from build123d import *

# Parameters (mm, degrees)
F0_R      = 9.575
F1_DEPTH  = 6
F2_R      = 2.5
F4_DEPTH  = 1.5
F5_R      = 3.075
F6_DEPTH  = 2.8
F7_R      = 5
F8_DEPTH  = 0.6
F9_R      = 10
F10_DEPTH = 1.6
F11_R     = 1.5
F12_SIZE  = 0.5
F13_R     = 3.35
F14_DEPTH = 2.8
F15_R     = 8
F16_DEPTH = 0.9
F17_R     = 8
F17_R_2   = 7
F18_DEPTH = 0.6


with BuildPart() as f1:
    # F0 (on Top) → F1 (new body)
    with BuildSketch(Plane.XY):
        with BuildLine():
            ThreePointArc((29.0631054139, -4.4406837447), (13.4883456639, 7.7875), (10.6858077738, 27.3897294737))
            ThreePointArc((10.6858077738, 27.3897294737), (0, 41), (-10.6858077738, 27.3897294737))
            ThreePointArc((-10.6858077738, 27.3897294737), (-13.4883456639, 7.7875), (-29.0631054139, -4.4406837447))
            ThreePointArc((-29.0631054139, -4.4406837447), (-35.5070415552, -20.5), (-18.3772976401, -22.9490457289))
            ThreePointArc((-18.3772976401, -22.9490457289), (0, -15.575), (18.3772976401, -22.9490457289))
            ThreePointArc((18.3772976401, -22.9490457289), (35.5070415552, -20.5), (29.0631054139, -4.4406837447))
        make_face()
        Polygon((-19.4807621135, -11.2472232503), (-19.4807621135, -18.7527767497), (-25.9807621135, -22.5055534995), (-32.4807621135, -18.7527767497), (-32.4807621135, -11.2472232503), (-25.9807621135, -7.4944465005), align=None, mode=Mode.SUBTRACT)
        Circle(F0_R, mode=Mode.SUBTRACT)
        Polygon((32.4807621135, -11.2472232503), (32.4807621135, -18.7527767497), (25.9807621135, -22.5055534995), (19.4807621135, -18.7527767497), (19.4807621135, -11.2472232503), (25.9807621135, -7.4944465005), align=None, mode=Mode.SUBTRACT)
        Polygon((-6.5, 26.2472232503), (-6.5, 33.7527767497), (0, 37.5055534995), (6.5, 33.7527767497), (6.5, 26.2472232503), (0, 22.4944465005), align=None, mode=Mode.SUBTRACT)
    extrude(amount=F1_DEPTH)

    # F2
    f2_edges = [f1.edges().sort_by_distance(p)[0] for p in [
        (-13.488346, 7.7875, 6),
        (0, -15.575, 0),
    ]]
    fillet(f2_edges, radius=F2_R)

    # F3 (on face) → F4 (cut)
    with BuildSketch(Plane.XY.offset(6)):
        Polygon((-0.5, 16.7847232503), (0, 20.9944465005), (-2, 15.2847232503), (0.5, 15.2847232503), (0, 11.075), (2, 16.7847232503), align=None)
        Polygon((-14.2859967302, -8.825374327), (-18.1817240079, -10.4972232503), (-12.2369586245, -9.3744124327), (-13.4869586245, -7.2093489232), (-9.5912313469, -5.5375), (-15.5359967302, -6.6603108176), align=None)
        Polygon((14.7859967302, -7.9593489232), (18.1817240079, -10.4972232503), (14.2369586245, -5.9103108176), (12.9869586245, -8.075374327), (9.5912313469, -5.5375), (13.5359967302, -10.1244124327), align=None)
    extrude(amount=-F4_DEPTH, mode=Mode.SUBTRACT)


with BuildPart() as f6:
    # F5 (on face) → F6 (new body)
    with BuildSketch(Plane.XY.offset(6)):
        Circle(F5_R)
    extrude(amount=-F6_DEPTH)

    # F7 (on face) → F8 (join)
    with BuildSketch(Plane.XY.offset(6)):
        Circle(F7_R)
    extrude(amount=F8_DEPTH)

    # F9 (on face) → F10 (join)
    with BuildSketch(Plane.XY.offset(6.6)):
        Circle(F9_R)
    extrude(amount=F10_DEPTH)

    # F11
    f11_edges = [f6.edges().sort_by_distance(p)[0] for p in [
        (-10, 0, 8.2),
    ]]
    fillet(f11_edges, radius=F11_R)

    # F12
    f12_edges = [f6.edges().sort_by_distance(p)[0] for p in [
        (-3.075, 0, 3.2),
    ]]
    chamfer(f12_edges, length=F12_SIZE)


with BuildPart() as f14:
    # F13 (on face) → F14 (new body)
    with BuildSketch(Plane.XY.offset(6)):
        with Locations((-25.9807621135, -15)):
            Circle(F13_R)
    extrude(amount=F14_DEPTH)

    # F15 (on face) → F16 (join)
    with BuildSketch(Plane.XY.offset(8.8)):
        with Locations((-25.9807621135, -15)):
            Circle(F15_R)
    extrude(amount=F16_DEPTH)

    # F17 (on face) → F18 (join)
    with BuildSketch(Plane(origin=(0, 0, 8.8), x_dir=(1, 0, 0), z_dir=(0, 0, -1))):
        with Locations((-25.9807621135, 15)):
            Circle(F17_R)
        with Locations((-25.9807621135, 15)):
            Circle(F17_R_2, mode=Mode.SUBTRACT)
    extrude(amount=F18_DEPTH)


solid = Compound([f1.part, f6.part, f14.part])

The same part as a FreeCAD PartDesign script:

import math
import FreeCAD as App
import Part
import Sketcher
from FreeCAD import Vector
Q = App.Units.Quantity


def edges_at(feature, points):
    """Names of the edges that pass closest to the given points."""
    edges = feature.Shape.Edges
    near = lambda p: min(range(len(edges)), key=lambda i: edges[i].distToShape(Part.Vertex(*p))[0])
    return sorted({f"Edge{near(p) + 1}" for p in points})

doc = App.newDocument("Part")
body = doc.addObject("PartDesign::Body", "Body")

# Sketch on XY plane
sketch1 = body.newObject("Sketcher::SketchObject", "Sketch")
sketch1.AttachmentSupport = (doc.getObject("XY_Plane"), [""])
sketch1.MapMode = "FlatFace"
sketch1.addGeometry([
    Part.ArcOfCircle(Part.Circle(Vector(37, 21, 0), Vector(0, 0, 1), 27), math.radians(166), math.radians(254)),  # 0
    Part.ArcOfCircle(Part.Circle(Vector(0, 30, 0), Vector(0, 0, 1), 11), math.radians(-14), math.radians(194)),  # 1
    Part.ArcOfCircle(Part.Circle(Vector(-37, 21, 0), Vector(0, 0, 1), 27), math.radians(-74), math.radians(14)),  # 2
    Part.ArcOfCircle(Part.Circle(Vector(-26, -15, 0), Vector(0, 0, 1), 11), math.radians(106), math.radians(314)),  # 3
    Part.ArcOfCircle(Part.Circle(Vector(0, -42, 0), Vector(0, 0, 1), 27), math.radians(46), math.radians(134)),  # 4
    Part.ArcOfCircle(Part.Circle(Vector(26, -15, 0), Vector(0, 0, 1), 11), math.radians(-134), math.radians(74)),  # 5
    Part.LineSegment(Vector(-26, -7, 0), Vector(-19, -11, 0)),  # 6
    Part.LineSegment(Vector(-19, -11, 0), Vector(-19, -19, 0)),  # 7
    Part.LineSegment(Vector(-19, -19, 0), Vector(-26, -23, 0)),  # 8
    Part.LineSegment(Vector(-26, -23, 0), Vector(-32, -19, 0)),  # 9
    Part.LineSegment(Vector(-32, -19, 0), Vector(-32, -11, 0)),  # 10
    Part.LineSegment(Vector(-32, -11, 0), Vector(-26, -7, 0)),  # 11
    Part.LineSegment(Vector(26, -7, 0), Vector(32, -11, 0)),  # 12
    Part.LineSegment(Vector(32, -11, 0), Vector(32, -19, 0)),  # 13
    Part.LineSegment(Vector(32, -19, 0), Vector(26, -23, 0)),  # 14
    Part.LineSegment(Vector(26, -23, 0), Vector(19, -19, 0)),  # 15
    Part.LineSegment(Vector(19, -19, 0), Vector(19, -11, 0)),  # 16
    Part.LineSegment(Vector(19, -11, 0), Vector(26, -7, 0)),  # 17
    Part.Circle(Vector(0, 0, 0), Vector(0, 0, 1), 10),  # 18
    Part.LineSegment(Vector(0, 22, 0), Vector(-6, 26, 0)),  # 19
    Part.LineSegment(Vector(-6, 26, 0), Vector(-6, 34, 0)),  # 20
    Part.LineSegment(Vector(-6, 34, 0), Vector(0, 38, 0)),  # 21
    Part.LineSegment(Vector(0, 38, 0), Vector(6, 34, 0)),  # 22
    Part.LineSegment(Vector(6, 34, 0), Vector(6, 26, 0)),  # 23
    Part.LineSegment(Vector(6, 26, 0), Vector(0, 22, 0)),  # 24
], False)
sketch1.addConstraint([
    Sketcher.Constraint("Tangent", 0, 1, 1, 1),
    Sketcher.Constraint("Tangent", 1, 2, 2, 2),
    Sketcher.Constraint("Tangent", 2, 1, 3, 1),
    Sketcher.Constraint("Tangent", 3, 2, 4, 2),
    Sketcher.Constraint("Tangent", 4, 1, 5, 1),
    Sketcher.Constraint("Tangent", 5, 2, 0, 2),
    Sketcher.Constraint("Coincident", 6, 2, 7, 1),
    Sketcher.Constraint("Coincident", 7, 2, 8, 1),
    Sketcher.Constraint("Coincident", 8, 2, 9, 1),
    Sketcher.Constraint("Coincident", 9, 2, 10, 1),
    Sketcher.Constraint("Coincident", 10, 2, 11, 1),
    Sketcher.Constraint("Coincident", 11, 2, 6, 1),
    Sketcher.Constraint("Coincident", 12, 2, 13, 1),
    Sketcher.Constraint("Coincident", 13, 2, 14, 1),
    Sketcher.Constraint("Coincident", 14, 2, 15, 1),
    Sketcher.Constraint("Coincident", 15, 2, 16, 1),
    Sketcher.Constraint("Coincident", 16, 2, 17, 1),
    Sketcher.Constraint("Coincident", 17, 2, 12, 1),
    Sketcher.Constraint("Coincident", 19, 2, 20, 1),
    Sketcher.Constraint("Coincident", 20, 2, 21, 1),
    Sketcher.Constraint("Coincident", 21, 2, 22, 1),
    Sketcher.Constraint("Coincident", 22, 2, 23, 1),
    Sketcher.Constraint("Coincident", 23, 2, 24, 1),
    Sketcher.Constraint("Coincident", 24, 2, 19, 1),
    Sketcher.Constraint("Vertical", 7),
    Sketcher.Constraint("Vertical", 10),
    Sketcher.Constraint("Vertical", 13),
    Sketcher.Constraint("Vertical", 16),
    Sketcher.Constraint("Vertical", 20),
    Sketcher.Constraint("Vertical", 23),
    Sketcher.Constraint("Coincident", 18, 3, -1, 1),
    Sketcher.Constraint("Equal", 0, 2),
    Sketcher.Constraint("Equal", 1, 3),
    Sketcher.Constraint("Equal", 2, 4),
    Sketcher.Constraint("Equal", 3, 5),
    Sketcher.Constraint("Symmetric", 0, 3, 2, 3, -2),
    Sketcher.Constraint("Symmetric", 10, 2, 12, 2, -2),
    Sketcher.Constraint("Symmetric", 8, 2, 14, 2, -2),
    Sketcher.Constraint("Symmetric", 7, 2, 15, 2, -2),
    Sketcher.Constraint("Symmetric", 11, 2, 17, 2, -2),
    Sketcher.Constraint("Symmetric", 20, 2, 22, 2, -2),
    Sketcher.Constraint("PointOnObject", 4, 3, -2),
    Sketcher.Constraint("PointOnObject", 21, 2, -2),
    Sketcher.Constraint("PointOnObject", 24, 2, -2),
    Sketcher.Constraint("Parallel", 6, 9),
    Sketcher.Constraint("Parallel", 8, 11),
    Sketcher.Constraint("Parallel", 9, 12),
    Sketcher.Constraint("Parallel", 11, 14),
    Sketcher.Constraint("Parallel", 14, 17),
    Sketcher.Constraint("Parallel", 15, 19),
    Sketcher.Constraint("Parallel", 17, 21),
    Sketcher.Constraint("Parallel", 21, 24),
    Sketcher.Constraint("Horizontal", 7, 2, 9, 2),
    Sketcher.Constraint("Horizontal", 6, 2, 10, 2),
    Sketcher.Constraint("Vertical", 3, 3, 8, 2),
    Sketcher.Constraint("Equal", 16, 20),
    Sketcher.Constraint("Equal", 17, 19),
    Sketcher.Constraint("Radius", 1, Q("11 mm")),
    Sketcher.Constraint("Diameter", 18, Q("19.15 mm")),
    Sketcher.Constraint("Angle", 6, Q("-30 deg")),
    Sketcher.Constraint("DistanceY", -1, 1, 1, 3, Q("30 mm")),
    Sketcher.Constraint("DistanceY", 3, 3, -1, 1, Q("15 mm")),
    Sketcher.Constraint("DistanceX", 9, 2, 7, 2, Q("13 mm")),
    Sketcher.Constraint("Radius", 0, Q("26.586601 mm")),
    Sketcher.Constraint("DistanceY", -1, 1, 0, 3, Q("21.0808 mm")),
    Sketcher.Constraint("DistanceY", 7, 2, 7, 1, Q("7.505553 mm")),
    Sketcher.Constraint("DistanceY", 6, 2, 2, 1, Q("6.80654 mm")),
    Sketcher.Constraint("DistanceY", -1, 1, 19, 2, Q("26.247223 mm")),
])
pad1 = body.newObject("PartDesign::Pad", "Pad")
pad1.Profile = sketch1
pad1.Length = 6
doc.recompute()

fillet = body.newObject("PartDesign::Fillet", "Fillet")
fillet.Base = (pad1, edges_at(pad1, [(-13.488, 7.787, 6), (0, -15.575, 0)]))
fillet.Radius = 2.5

# Sketch on XY plane
sketch2 = body.newObject("Sketcher::SketchObject", "Sketch001")
sketch2.AttachmentSupport = (doc.getObject("XY_Plane"), [""])
sketch2.MapMode = "FlatFace"
sketch2.AttachmentOffset = App.Placement(Vector(0, 0, 6), App.Rotation())
sketch2.addGeometry([
    Part.LineSegment(Vector(-0.5, 16.8, 0), Vector(0, 21, 0)),  # 0
    Part.LineSegment(Vector(0, 21, 0), Vector(-2, 15.3, 0)),  # 1
    Part.LineSegment(Vector(-2, 15.3, 0), Vector(0.5, 15.3, 0)),  # 2
    Part.LineSegment(Vector(0.5, 15.3, 0), Vector(0, 11.1, 0)),  # 3
    Part.LineSegment(Vector(0, 11.1, 0), Vector(2, 16.8, 0)),  # 4
    Part.LineSegment(Vector(2, 16.8, 0), Vector(-0.5, 16.8, 0)),  # 5
    Part.LineSegment(Vector(-14.3, -8.8, 0), Vector(-18.2, -10.5, 0)),  # 6
    Part.LineSegment(Vector(-18.2, -10.5, 0), Vector(-12.2, -9.4, 0)),  # 7
    Part.LineSegment(Vector(-12.2, -9.4, 0), Vector(-13.5, -7.2, 0)),  # 8
    Part.LineSegment(Vector(-13.5, -7.2, 0), Vector(-9.6, -5.5, 0)),  # 9
    Part.LineSegment(Vector(-9.6, -5.5, 0), Vector(-15.5, -6.7, 0)),  # 10
    Part.LineSegment(Vector(-15.5, -6.7, 0), Vector(-14.3, -8.8, 0)),  # 11
    Part.LineSegment(Vector(14.8, -8, 0), Vector(18.2, -10.5, 0)),  # 12
    Part.LineSegment(Vector(18.2, -10.5, 0), Vector(14.2, -5.9, 0)),  # 13
    Part.LineSegment(Vector(14.2, -5.9, 0), Vector(13, -8.1, 0)),  # 14
    Part.LineSegment(Vector(13, -8.1, 0), Vector(9.6, -5.5, 0)),  # 15
    Part.LineSegment(Vector(9.6, -5.5, 0), Vector(13.5, -10.1, 0)),  # 16
    Part.LineSegment(Vector(13.5, -10.1, 0), Vector(14.8, -8, 0)),  # 17
], False)
sketch2.addConstraint([
    Sketcher.Constraint("Coincident", 0, 2, 1, 1),
    Sketcher.Constraint("Coincident", 1, 2, 2, 1),
    Sketcher.Constraint("Coincident", 2, 2, 3, 1),
    Sketcher.Constraint("Coincident", 3, 2, 4, 1),
    Sketcher.Constraint("Coincident", 4, 2, 5, 1),
    Sketcher.Constraint("Coincident", 5, 2, 0, 1),
    Sketcher.Constraint("Coincident", 6, 2, 7, 1),
    Sketcher.Constraint("Coincident", 7, 2, 8, 1),
    Sketcher.Constraint("Coincident", 8, 2, 9, 1),
    Sketcher.Constraint("Coincident", 9, 2, 10, 1),
    Sketcher.Constraint("Coincident", 10, 2, 11, 1),
    Sketcher.Constraint("Coincident", 11, 2, 6, 1),
    Sketcher.Constraint("Coincident", 12, 2, 13, 1),
    Sketcher.Constraint("Coincident", 13, 2, 14, 1),
    Sketcher.Constraint("Coincident", 14, 2, 15, 1),
    Sketcher.Constraint("Coincident", 15, 2, 16, 1),
    Sketcher.Constraint("Coincident", 16, 2, 17, 1),
    Sketcher.Constraint("Coincident", 17, 2, 12, 1),
    Sketcher.Constraint("Horizontal", 2),
    Sketcher.Constraint("Horizontal", 5),
    Sketcher.Constraint("Symmetric", 6, 2, 12, 2, -2),
    Sketcher.Constraint("Symmetric", 9, 2, 15, 2, -2),
    Sketcher.Constraint("PointOnObject", 0, 2, -2),
    Sketcher.Constraint("PointOnObject", 3, 2, -2),
    Sketcher.Constraint("Parallel", 0, 3),
    Sketcher.Constraint("Parallel", 1, 4),
    Sketcher.Constraint("Parallel", 6, 9),
    Sketcher.Constraint("Parallel", 7, 10),
    Sketcher.Constraint("Parallel", 8, 11),
    Sketcher.Constraint("Parallel", 12, 15),
    Sketcher.Constraint("Parallel", 13, 16),
    Sketcher.Constraint("Parallel", 14, 17),
    Sketcher.Constraint("Equal", 2, 5),
    Sketcher.Constraint("Equal", 3, 6),
    Sketcher.Constraint("Equal", 4, 7),
    Sketcher.Constraint("Equal", 6, 9),
    Sketcher.Constraint("Equal", 9, 12),
    Sketcher.Constraint("Equal", 10, 13),
    Sketcher.Constraint("Equal", 11, 14),
    Sketcher.Constraint("Equal", 12, 15),
    Sketcher.Constraint("Angle", 8, Q("120 deg")),
    Sketcher.Constraint("Angle", 14, Q("-120 deg")),
    Sketcher.Constraint("DistanceX", 2, 1, 2, 2, Q("2.5 mm")),
    Sketcher.Constraint("DistanceX", 1, 2, -1, 1, Q("2 mm")),
    Sketcher.Constraint("Distance", 8, Q("2.5 mm")),
    Sketcher.Constraint("DistanceY", 2, 2, 4, 2, Q("1.5 mm")),
    Sketcher.Constraint("DistanceY", -1, 1, 3, 2, Q("11.075 mm")),
    Sketcher.Constraint("DistanceY", 9, 2, -1, 1, Q("5.5375 mm")),
    Sketcher.Constraint("DistanceY", 7, 2, 10, 2, Q("2.714102 mm")),
    Sketcher.Constraint("DistanceY", 16, 2, 13, 2, Q("4.214102 mm")),
    Sketcher.Constraint("Distance", 1, Q("6.049871 mm")),
    Sketcher.Constraint("DistanceX", 7, 2, -1, 1, Q("12.236959 mm")),
])
pocket1 = body.newObject("PartDesign::Pocket", "Pocket")
pocket1.Profile = sketch2
pocket1.Length = 1.5
body2 = doc.addObject("PartDesign::Body", "Body001")

# Sketch on XY plane
sketch3 = body2.newObject("Sketcher::SketchObject", "Sketch002")
sketch3.AttachmentSupport = (doc.getObject("XY_Plane001"), [""])
sketch3.MapMode = "FlatFace"
sketch3.AttachmentOffset = App.Placement(Vector(0, 0, 6), App.Rotation())
sketch3.addGeometry(Part.Circle(Vector(0, 0, 0), Vector(0, 0, 1), 3.1), False)
sketch3.addConstraint([
    Sketcher.Constraint("Coincident", 0, 3, -1, 1),
    Sketcher.Constraint("Diameter", 0, Q("6.15 mm")),
])
pad2 = body2.newObject("PartDesign::Pad", "Pad001")
pad2.Profile = sketch3
pad2.Length = 2.8
pad2.Reversed = True

# Sketch on XY plane
sketch4 = body2.newObject("Sketcher::SketchObject", "Sketch003")
sketch4.AttachmentSupport = (doc.getObject("XY_Plane001"), [""])
sketch4.MapMode = "FlatFace"
sketch4.AttachmentOffset = App.Placement(Vector(0, 0, 6), App.Rotation())
sketch4.addGeometry(Part.Circle(Vector(0, 0, 0), Vector(0, 0, 1), 5), False)
sketch4.addConstraint([
    Sketcher.Constraint("Coincident", 0, 3, -1, 1),
    Sketcher.Constraint("Diameter", 0, Q("10 mm")),
])
pad3 = body2.newObject("PartDesign::Pad", "Pad002")
pad3.Profile = sketch4
pad3.Length = 0.6

# Sketch on XY plane
sketch5 = body2.newObject("Sketcher::SketchObject", "Sketch004")
sketch5.AttachmentSupport = (doc.getObject("XY_Plane001"), [""])
sketch5.MapMode = "FlatFace"
sketch5.AttachmentOffset = App.Placement(Vector(0, 0, 6.6), App.Rotation())
sketch5.addGeometry(Part.Circle(Vector(0, 0, 0), Vector(0, 0, 1), 10), False)
sketch5.addConstraint([
    Sketcher.Constraint("Coincident", 0, 3, -1, 1),
    Sketcher.Constraint("Diameter", 0, Q("20 mm")),
])
pad4 = body2.newObject("PartDesign::Pad", "Pad003")
pad4.Profile = sketch5
pad4.Length = 1.6
doc.recompute()

fillet2 = body2.newObject("PartDesign::Fillet", "Fillet001")
fillet2.Base = (pad4, edges_at(pad4, [(-10, 0, 8.2)]))
fillet2.Radius = 1.5
doc.recompute()

chamfer = body2.newObject("PartDesign::Chamfer", "Chamfer")
chamfer.Base = (fillet2, edges_at(fillet2, [(-3.075, 0, 3.2)]))
chamfer.Size = 0.5
body3 = doc.addObject("PartDesign::Body", "Body002")

# Sketch on XY plane
sketch6 = body3.newObject("Sketcher::SketchObject", "Sketch005")
sketch6.AttachmentSupport = (doc.getObject("XY_Plane002"), [""])
sketch6.MapMode = "FlatFace"
sketch6.AttachmentOffset = App.Placement(Vector(0, 0, 6), App.Rotation())
sketch6.addGeometry(Part.Circle(Vector(-26, -15, 0), Vector(0, 0, 1), 3.4), False)
sketch6.addConstraint([
    Sketcher.Constraint("Diameter", 0, Q("6.7 mm")),
    Sketcher.Constraint("DistanceY", 0, 3, -1, 1, Q("15 mm")),
    Sketcher.Constraint("DistanceX", 0, 3, -1, 1, Q("25.980762 mm")),
])
pad5 = body3.newObject("PartDesign::Pad", "Pad004")
pad5.Profile = sketch6
pad5.Length = 2.8

# Sketch on XY plane
sketch7 = body3.newObject("Sketcher::SketchObject", "Sketch006")
sketch7.AttachmentSupport = (doc.getObject("XY_Plane002"), [""])
sketch7.MapMode = "FlatFace"
sketch7.AttachmentOffset = App.Placement(Vector(0, 0, 8.8), App.Rotation())
sketch7.addGeometry(Part.Circle(Vector(-26, -15, 0), Vector(0, 0, 1), 8), False)
sketch7.addConstraint([
    Sketcher.Constraint("Diameter", 0, Q("16 mm")),
    Sketcher.Constraint("DistanceY", 0, 3, -1, 1, Q("15 mm")),
    Sketcher.Constraint("DistanceX", 0, 3, -1, 1, Q("25.980762 mm")),
])
pad6 = body3.newObject("PartDesign::Pad", "Pad005")
pad6.Profile = sketch7
pad6.Length = 0.9

# Sketch on XY plane
sketch8 = body3.newObject("Sketcher::SketchObject", "Sketch007")
sketch8.AttachmentSupport = (doc.getObject("XY_Plane002"), [""])
sketch8.MapMode = "FlatFace"
sketch8.AttachmentOffset = App.Placement(Vector(0, 0, 8.8), App.Rotation())
sketch8.addGeometry([
    Part.Circle(Vector(-26, -15, 0), Vector(0, 0, 1), 8),
    Part.Circle(Vector(-26, -15, 0), Vector(0, 0, 1), 7),
], False)
sketch8.addConstraint([
    Sketcher.Constraint("Coincident", 1, 3, 0, 3),
    Sketcher.Constraint("Diameter", 0, Q("16 mm")),
    Sketcher.Constraint("Diameter", 1, Q("14 mm")),
    Sketcher.Constraint("DistanceY", 0, 3, -1, 1, Q("15 mm")),
    Sketcher.Constraint("DistanceX", 0, 3, -1, 1, Q("25.980762 mm")),
])
pad7 = body3.newObject("PartDesign::Pad", "Pad006")
pad7.Profile = sketch8
pad7.Length = 0.6
pad7.Reversed = True

doc.recompute()
